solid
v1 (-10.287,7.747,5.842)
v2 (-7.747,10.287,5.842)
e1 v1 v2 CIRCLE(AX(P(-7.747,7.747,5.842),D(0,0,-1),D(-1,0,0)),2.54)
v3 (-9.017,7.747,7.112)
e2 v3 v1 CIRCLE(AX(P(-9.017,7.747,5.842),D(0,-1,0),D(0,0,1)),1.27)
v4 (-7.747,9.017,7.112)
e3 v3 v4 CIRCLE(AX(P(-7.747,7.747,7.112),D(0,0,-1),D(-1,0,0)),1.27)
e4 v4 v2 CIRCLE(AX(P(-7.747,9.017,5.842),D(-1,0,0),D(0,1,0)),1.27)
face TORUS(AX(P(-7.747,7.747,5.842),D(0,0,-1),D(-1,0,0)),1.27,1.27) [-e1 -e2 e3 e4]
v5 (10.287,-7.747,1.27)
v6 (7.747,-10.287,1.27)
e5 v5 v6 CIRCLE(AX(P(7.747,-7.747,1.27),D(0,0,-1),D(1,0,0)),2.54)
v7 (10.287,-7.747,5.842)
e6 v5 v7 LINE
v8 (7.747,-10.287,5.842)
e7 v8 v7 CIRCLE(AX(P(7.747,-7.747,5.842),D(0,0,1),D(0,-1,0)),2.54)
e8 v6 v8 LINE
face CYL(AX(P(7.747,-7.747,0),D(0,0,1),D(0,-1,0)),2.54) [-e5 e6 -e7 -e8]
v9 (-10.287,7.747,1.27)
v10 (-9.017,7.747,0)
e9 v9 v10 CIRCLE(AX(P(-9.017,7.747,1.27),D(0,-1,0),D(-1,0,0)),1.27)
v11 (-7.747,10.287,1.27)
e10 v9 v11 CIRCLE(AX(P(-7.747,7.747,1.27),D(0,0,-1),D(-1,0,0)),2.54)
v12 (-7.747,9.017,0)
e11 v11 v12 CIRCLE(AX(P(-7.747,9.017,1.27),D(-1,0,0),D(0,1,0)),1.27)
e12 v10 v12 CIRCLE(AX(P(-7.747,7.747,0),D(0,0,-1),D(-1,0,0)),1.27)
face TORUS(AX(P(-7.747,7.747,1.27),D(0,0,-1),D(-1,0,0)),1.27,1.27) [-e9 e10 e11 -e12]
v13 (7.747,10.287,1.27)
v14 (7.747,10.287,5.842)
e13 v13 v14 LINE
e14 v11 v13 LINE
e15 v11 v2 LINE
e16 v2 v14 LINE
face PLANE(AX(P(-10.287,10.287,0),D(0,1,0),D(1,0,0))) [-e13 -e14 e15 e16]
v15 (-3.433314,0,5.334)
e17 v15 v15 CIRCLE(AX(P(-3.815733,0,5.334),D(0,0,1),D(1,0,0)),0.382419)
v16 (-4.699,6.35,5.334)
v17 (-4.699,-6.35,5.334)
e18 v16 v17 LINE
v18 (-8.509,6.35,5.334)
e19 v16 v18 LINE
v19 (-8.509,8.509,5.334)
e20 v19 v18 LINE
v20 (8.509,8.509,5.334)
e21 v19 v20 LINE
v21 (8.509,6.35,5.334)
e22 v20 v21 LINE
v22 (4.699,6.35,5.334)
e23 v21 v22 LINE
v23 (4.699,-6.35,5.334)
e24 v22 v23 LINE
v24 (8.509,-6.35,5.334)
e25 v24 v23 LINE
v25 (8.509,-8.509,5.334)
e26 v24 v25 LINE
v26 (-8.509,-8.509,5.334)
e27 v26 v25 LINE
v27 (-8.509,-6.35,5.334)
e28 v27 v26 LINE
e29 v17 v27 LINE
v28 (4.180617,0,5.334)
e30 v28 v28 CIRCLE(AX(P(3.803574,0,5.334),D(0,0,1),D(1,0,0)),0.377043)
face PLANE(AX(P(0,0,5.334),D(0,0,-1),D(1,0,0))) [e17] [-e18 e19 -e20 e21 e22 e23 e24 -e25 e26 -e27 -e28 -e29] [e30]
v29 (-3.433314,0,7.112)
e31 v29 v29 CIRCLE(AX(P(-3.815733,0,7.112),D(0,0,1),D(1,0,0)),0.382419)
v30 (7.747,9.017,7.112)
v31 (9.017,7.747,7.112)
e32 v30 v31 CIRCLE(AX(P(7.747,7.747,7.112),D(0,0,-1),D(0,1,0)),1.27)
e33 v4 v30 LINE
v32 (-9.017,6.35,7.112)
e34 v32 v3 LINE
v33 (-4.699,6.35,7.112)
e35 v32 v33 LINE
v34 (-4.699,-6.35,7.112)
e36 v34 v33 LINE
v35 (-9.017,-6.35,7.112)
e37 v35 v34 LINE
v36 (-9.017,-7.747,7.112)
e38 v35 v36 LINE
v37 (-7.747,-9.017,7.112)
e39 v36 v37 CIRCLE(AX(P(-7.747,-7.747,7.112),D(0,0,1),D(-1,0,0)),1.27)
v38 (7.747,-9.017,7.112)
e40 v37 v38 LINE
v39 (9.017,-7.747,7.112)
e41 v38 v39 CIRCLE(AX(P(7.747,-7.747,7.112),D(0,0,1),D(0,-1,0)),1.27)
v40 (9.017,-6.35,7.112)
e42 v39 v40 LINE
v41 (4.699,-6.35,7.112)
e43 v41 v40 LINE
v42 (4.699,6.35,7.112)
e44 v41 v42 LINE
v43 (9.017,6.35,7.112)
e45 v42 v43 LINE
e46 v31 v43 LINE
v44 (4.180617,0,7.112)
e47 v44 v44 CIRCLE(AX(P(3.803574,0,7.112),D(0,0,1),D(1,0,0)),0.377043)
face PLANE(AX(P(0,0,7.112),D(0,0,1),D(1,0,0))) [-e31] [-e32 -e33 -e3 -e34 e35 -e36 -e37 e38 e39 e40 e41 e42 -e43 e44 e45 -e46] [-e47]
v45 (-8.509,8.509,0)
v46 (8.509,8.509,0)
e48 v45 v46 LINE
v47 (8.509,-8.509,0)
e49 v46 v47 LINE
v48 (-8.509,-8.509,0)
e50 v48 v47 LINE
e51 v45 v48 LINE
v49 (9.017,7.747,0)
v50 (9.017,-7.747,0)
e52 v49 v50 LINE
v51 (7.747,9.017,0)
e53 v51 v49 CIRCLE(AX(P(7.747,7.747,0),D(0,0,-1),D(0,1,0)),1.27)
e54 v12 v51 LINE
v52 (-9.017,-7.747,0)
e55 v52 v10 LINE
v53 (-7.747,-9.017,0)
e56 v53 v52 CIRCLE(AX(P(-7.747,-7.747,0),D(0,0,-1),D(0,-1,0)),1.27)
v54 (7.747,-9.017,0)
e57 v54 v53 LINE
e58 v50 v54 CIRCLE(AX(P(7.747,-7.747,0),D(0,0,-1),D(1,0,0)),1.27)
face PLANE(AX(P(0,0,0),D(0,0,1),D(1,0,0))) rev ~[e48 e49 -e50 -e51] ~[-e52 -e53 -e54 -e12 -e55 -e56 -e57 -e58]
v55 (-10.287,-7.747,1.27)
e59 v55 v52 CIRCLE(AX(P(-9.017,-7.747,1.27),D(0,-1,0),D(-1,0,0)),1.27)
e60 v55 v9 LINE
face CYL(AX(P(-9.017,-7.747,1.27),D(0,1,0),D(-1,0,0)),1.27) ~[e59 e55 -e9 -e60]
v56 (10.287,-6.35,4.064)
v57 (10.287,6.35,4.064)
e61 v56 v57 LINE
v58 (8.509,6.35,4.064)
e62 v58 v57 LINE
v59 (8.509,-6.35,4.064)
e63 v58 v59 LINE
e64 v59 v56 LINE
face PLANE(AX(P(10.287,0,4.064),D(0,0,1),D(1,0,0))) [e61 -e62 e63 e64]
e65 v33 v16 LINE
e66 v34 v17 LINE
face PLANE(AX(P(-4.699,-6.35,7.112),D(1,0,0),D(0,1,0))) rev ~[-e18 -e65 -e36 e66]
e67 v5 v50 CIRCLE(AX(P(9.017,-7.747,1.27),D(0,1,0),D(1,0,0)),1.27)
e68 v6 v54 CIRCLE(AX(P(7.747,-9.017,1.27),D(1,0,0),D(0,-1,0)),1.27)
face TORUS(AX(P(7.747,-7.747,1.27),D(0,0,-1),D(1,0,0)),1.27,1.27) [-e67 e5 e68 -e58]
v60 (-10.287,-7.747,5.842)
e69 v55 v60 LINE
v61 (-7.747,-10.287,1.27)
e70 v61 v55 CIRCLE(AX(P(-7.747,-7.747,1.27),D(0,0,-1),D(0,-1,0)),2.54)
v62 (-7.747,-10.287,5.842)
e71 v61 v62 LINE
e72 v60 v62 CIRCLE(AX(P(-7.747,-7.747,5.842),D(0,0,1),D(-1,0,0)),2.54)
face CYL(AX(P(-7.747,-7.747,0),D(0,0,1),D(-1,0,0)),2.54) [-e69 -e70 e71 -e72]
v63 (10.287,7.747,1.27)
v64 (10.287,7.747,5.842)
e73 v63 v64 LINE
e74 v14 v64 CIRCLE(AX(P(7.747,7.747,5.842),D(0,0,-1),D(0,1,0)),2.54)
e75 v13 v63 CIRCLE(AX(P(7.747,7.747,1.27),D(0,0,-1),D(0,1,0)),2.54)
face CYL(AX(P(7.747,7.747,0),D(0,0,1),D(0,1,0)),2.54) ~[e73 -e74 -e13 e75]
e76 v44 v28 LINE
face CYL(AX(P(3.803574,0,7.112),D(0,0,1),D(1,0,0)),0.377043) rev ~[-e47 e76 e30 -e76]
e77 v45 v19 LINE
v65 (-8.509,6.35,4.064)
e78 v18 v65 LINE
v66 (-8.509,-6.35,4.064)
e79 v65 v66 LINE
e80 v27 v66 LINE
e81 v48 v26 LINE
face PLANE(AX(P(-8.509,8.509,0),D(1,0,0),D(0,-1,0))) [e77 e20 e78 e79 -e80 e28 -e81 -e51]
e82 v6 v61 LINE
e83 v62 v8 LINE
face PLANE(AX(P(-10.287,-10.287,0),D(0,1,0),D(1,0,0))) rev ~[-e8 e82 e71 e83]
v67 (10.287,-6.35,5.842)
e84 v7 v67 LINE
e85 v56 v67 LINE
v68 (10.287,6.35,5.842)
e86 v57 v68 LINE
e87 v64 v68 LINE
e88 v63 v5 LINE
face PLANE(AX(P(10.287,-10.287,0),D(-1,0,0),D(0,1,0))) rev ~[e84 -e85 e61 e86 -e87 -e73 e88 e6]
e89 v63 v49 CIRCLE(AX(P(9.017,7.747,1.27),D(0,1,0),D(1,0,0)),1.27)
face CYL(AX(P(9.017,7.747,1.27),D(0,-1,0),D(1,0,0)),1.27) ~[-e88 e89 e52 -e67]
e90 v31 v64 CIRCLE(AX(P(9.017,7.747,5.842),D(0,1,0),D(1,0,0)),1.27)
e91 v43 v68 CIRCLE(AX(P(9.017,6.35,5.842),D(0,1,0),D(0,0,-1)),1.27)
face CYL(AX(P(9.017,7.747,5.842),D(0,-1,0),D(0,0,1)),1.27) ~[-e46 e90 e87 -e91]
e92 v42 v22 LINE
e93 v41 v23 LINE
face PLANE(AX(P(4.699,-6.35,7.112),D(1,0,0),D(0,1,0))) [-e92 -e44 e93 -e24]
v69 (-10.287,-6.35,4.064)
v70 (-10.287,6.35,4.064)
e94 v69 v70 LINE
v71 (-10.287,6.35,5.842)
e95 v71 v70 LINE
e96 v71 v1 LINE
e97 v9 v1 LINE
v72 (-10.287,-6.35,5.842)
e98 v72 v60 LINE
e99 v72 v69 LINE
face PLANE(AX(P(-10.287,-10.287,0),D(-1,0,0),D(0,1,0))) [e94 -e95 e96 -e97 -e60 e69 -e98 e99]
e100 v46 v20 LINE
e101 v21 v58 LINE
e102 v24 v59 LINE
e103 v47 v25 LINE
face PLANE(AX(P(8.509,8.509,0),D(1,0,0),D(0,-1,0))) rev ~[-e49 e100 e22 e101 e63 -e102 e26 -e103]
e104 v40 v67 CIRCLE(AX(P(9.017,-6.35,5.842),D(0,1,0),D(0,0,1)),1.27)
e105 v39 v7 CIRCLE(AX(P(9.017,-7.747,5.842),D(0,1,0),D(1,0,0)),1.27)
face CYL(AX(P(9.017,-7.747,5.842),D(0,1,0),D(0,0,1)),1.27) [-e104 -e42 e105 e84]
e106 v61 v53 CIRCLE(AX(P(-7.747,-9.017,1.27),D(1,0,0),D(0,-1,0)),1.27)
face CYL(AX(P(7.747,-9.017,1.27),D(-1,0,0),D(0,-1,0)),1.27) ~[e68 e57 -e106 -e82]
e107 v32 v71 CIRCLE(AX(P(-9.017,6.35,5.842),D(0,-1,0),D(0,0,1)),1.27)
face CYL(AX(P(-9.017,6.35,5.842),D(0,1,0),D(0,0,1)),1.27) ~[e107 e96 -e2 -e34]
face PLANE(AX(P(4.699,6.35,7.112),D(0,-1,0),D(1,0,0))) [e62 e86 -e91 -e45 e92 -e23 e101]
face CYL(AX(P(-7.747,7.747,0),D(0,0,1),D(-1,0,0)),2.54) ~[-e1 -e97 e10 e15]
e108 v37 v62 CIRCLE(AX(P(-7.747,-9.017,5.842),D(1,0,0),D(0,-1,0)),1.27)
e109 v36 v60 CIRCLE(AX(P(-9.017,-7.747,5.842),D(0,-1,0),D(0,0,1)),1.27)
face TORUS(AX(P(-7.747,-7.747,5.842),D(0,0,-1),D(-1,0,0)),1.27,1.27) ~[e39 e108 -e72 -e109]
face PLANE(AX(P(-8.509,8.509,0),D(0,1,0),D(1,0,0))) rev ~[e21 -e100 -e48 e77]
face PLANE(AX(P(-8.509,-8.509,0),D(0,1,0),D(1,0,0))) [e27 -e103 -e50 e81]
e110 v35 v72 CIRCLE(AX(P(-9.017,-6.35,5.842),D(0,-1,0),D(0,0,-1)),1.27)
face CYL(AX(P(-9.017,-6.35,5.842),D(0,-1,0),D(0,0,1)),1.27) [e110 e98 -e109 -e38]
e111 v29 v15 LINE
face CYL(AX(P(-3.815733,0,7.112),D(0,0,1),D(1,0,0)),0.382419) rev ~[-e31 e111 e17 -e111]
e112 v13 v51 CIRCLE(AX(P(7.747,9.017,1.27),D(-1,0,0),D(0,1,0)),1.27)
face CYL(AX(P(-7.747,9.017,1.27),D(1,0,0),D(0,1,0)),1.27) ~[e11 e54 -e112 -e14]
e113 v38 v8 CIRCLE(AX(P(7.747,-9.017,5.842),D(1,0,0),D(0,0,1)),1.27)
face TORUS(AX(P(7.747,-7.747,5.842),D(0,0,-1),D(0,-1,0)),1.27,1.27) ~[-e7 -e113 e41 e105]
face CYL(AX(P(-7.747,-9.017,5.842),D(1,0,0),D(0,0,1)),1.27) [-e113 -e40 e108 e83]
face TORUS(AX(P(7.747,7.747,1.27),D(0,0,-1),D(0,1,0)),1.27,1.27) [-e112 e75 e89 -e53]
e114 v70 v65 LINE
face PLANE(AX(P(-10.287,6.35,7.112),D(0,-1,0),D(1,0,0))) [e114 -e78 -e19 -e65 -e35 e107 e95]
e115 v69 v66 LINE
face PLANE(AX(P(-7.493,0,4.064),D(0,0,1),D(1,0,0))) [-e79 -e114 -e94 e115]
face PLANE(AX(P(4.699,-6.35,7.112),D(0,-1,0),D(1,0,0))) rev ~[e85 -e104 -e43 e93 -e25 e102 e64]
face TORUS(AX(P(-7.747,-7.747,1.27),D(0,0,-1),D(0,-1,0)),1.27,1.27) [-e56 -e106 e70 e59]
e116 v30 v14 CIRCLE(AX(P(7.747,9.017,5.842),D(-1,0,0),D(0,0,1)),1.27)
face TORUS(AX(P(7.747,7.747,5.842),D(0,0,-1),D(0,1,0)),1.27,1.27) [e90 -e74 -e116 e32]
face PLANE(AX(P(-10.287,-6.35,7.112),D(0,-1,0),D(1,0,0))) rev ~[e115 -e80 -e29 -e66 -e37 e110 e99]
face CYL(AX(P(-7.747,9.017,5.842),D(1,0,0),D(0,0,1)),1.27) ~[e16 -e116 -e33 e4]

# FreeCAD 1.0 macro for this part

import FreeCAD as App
import Part
import Sketcher

V = App.Vector
Q = App.Units.Quantity


def edges_at(feature, points):
    """Names of the edges that pass closest to the given points."""
    edges = feature.Shape.Edges
    near = lambda p: min(range(len(edges)), key=lambda i: edges[i].distToShape(Part.Vertex(*p))[0])
    return sorted({f"Edge{near(p) + 1}" for p in points})


def add_polygon(sketch, points):
    """Adds a closed chain of lines whose ends are joined by coincident constraints."""
    first, n = sketch.GeometryCount, len(points)
    for a, b in zip(points, points[1:] + points[:1]):
        sketch.addGeometry(Part.LineSegment(App.Vector(*a, 0), App.Vector(*b, 0)), False)
    for i in range(n):
        sketch.addConstraint(Sketcher.Constraint("Coincident", first + i, 2, first + (i + 1) % n, 1))

doc = App.newDocument("Part")
body = doc.addObject("PartDesign::Body", "Body")

sketch1 = body.newObject("Sketcher::SketchObject", "Sketch")
sketch1.AttachmentSupport = (doc.getObject("XY_Plane"), [""])
sketch1.MapMode = "FlatFace"
add_polygon(sketch1, [(-10, 10), (-10, -10), (10, -10), (10, 10)])
sketch1.addConstraint(Sketcher.Constraint("Vertical", 0))
sketch1.addConstraint(Sketcher.Constraint("Horizontal", 1))
sketch1.addConstraint(Sketcher.Constraint("Vertical", 2))
sketch1.addConstraint(Sketcher.Constraint("Horizontal", 3))
sketch1.addConstraint(Sketcher.Constraint("Symmetric", 0, 2, 2, 2, -1, 1))
sketch1.addConstraint(Sketcher.Constraint("Equal", 3, 0))
sketch1.addConstraint(Sketcher.Constraint("DistanceX", 1, 1, 1, 2, Q("0.81 in")))
pad1 = body.newObject("PartDesign::Pad", "Pad")
pad1.Profile = sketch1
pad1.Length = Q("0.28 in")

sketch2 = body.newObject("Sketcher::SketchObject", "Sketch001")
sketch2.AttachmentSupport = (doc.getObject("XY_Plane"), [""])
sketch2.MapMode = "FlatFace"
add_polygon(sketch2, [(-9, -9), (-9, 9), (9, 9), (9, -9)])
sketch2.addConstraint(Sketcher.Constraint("Vertical", 0))
sketch2.addConstraint(Sketcher.Constraint("Horizontal", 1))
sketch2.addConstraint(Sketcher.Constraint("Vertical", 2))
sketch2.addConstraint(Sketcher.Constraint("Horizontal", 3))
sketch2.addConstraint(Sketcher.Constraint("Symmetric", 0, 2, 2, 2, -1, 1))
sketch2.addConstraint(Sketcher.Constraint("Equal", 3, 0))
sketch2.addConstraint(Sketcher.Constraint("DistanceX", 1, 1, 1, 2, Q("0.67 in")))
pocket1 = body.newObject("PartDesign::Pocket", "Pocket")
pocket1.Profile = sketch2
pocket1.Length = Q("0.21 in")
pocket1.Reversed = True
doc.recompute()

fillet = body.newObject("PartDesign::Fillet", "Fillet")
fillet.Base = (pocket1, edges_at(pocket1, [
    (-10.287, -10.287, 3.556),
    (10.287, 10.287, 3.556),
    (10.287, -10.287, 3.556),
    (-10.287, 10.287, 3.556),
]))
fillet.Radius = Q("0.1 in")

sketch3 = body.newObject("Sketcher::SketchObject", "Sketch002")
sketch3.AttachmentSupport = (doc.getObject("XY_Plane"), [""])
sketch3.MapMode = "FlatFace"
sketch3.AttachmentOffset = App.Placement(V(0, 0, 0.28 * 25.4), App.Rotation())
add_polygon(sketch3, [(-10, 6), (-10, -6), (-5, -6), (-5, 6)])
sketch3.addConstraint(Sketcher.Constraint("Vertical", 0))
sketch3.addConstraint(Sketcher.Constraint("Horizontal", 1))
sketch3.addConstraint(Sketcher.Constraint("Vertical", 2))
sketch3.addConstraint(Sketcher.Constraint("Horizontal", 3))
sketch3.addConstraint(Sketcher.Constraint("DistanceY", 0, 2, 0, 1, Q("0.5 in")))
sketch3.addConstraint(Sketcher.Constraint("DistanceX", 1, 1, 1, 2, Q("0.22 in")))
sketch3.addConstraint(Sketcher.Constraint("DistanceY", 0, 2, -1, 1, Q("0.25 in")))
sketch3.addConstraint(Sketcher.Constraint("DistanceX", 0, 2, -1, 1, Q("0.405 in")))
pocket2 = body.newObject("PartDesign::Pocket", "Pocket001")
pocket2.Profile = sketch3
pocket2.Length = Q("0.12 in")

sketch4 = body.newObject("Sketcher::SketchObject", "Sketch003")
sketch4.AttachmentSupport = (doc.getObject("XY_Plane"), [""])
sketch4.MapMode = "FlatFace"
sketch4.AttachmentOffset = App.Placement(V(0, 0, 0.28 * 25.4), App.Rotation())
add_polygon(sketch4, [(5, 6), (5, -6), (16, -6), (16, 6)])
sketch4.addConstraint(Sketcher.Constraint("Vertical", 0))
sketch4.addConstraint(Sketcher.Constraint("Horizontal", 1))
sketch4.addConstraint(Sketcher.Constraint("Vertical", 2))
sketch4.addConstraint(Sketcher.Constraint("Horizontal", 3))
sketch4.addConstraint(Sketcher.Constraint("DistanceY", 0, 2, 0, 1, Q("0.5 in")))
sketch4.addConstraint(Sketcher.Constraint("DistanceX", 1, 1, 1, 2, Q("0.44 in")))
sketch4.addConstraint(Sketcher.Constraint("DistanceY", 0, 2, -1, 1, Q("0.25 in")))
sketch4.addConstraint(Sketcher.Constraint("DistanceX", -1, 1, 0, 2, Q("0.185 in")))
pocket3 = body.newObject("PartDesign::Pocket", "Pocket002")
pocket3.Profile = sketch4
pocket3.Length = Q("0.12 in")

sketch5 = body.newObject("Sketcher::SketchObject", "Sketch004")
sketch5.AttachmentSupport = (doc.getObject("XY_Plane"), [""])
sketch5.MapMode = "FlatFace"
sketch5.AttachmentOffset = App.Placement(V(0, 0, 0.28 * 25.4), App.Rotation())
sketch5.addGeometry(Part.Circle(V(-3.82, 0, 0), V(0, 0, 1), 0.38), False)
sketch5.addGeometry(Part.Circle(V(3.8, 0, 0), V(0, 0, 1), 0.38), False)
sketch5.addConstraint(Sketcher.Constraint("PointOnObject", 0, 3, -1))
sketch5.addConstraint(Sketcher.Constraint("PointOnObject", 1, 3, -1))
sketch5.addConstraint(Sketcher.Constraint("Diameter", 0, 0.764838))
sketch5.addConstraint(Sketcher.Constraint("Diameter", 1, 0.754086))
sketch5.addConstraint(Sketcher.Constraint("DistanceX", 0, 3, -1, 1, 3.815733))
sketch5.addConstraint(Sketcher.Constraint("DistanceX", -1, 1, 1, 3, 3.803574))
pocket4 = body.newObject("PartDesign::Pocket", "Pocket003")
pocket4.Profile = sketch5
pocket4.Length = Q("0.07 in")
doc.recompute()

fillet2 = body.newObject("PartDesign::Fillet", "Fillet001")
fillet2.Base = (pocket4, edges_at(pocket4, [(0, 10.287, 7.112), (0, -10.287, 7.112)]))
fillet2.Radius = Q("0.05 in")
doc.recompute()

fillet3 = body.newObject("PartDesign::Fillet", "Fillet002")
fillet3.Base = (fillet2, edges_at(fillet2, [(-10.287, 0, 0), (0, 10.287, 0), (-9.543, 9.543, 0)]))
fillet3.Radius = Q("0.05 in")

doc.recompute()
